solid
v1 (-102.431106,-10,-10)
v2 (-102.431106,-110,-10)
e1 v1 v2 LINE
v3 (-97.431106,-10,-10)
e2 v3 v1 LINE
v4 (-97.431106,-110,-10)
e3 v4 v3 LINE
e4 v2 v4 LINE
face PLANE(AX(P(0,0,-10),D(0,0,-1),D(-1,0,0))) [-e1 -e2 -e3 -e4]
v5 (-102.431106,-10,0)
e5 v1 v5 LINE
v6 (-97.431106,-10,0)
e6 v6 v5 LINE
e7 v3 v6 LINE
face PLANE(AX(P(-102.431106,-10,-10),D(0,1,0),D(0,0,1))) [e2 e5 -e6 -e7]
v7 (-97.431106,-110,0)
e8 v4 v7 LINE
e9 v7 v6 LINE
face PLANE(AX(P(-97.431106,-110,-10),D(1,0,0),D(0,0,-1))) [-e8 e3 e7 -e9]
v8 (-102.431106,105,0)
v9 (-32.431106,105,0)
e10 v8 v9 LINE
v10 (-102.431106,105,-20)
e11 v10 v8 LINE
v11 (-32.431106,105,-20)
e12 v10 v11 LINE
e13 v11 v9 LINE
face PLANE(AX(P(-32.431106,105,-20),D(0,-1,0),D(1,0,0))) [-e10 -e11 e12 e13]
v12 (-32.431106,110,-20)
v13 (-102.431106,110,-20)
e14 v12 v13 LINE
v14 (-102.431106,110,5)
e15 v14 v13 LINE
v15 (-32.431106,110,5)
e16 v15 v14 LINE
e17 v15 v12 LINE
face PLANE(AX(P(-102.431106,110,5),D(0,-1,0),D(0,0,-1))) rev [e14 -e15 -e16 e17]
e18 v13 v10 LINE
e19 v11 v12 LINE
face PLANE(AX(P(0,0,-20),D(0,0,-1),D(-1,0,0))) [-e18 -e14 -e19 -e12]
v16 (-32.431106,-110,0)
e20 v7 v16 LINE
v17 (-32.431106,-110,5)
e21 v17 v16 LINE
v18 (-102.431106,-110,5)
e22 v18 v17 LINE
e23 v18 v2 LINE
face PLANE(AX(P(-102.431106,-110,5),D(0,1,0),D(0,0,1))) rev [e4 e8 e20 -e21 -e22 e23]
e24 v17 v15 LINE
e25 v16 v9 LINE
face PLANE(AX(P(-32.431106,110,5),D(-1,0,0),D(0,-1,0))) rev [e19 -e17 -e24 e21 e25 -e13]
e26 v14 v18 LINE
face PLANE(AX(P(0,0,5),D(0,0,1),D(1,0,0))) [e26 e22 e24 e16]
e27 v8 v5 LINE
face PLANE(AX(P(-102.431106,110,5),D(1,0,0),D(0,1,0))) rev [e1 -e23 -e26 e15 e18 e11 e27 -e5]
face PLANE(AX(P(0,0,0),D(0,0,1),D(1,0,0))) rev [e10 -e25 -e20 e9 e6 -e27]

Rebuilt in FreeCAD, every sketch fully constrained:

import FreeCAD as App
import Part
import Sketcher
from FreeCAD import Vector

doc = App.newDocument("Part")
body = doc.addObject("PartDesign::Body", "Body")

# Sketch on XY plane
sketch1 = body.newObject("Sketcher::SketchObject", "Sketch")
sketch1.AttachmentSupport = (doc.getObject("XY_Plane"), [""])
sketch1.MapMode = "FlatFace"
sketch1.addGeometry([
    Part.LineSegment(Vector(-102, 110, 0), Vector(-102, -110, 0)),
    Part.LineSegment(Vector(-102, -110, 0), Vector(-32, -110, 0)),
    Part.LineSegment(Vector(-32, -110, 0), Vector(-32, 110, 0)),
    Part.LineSegment(Vector(-32, 110, 0), Vector(-102, 110, 0)),
], False)
sketch1.addConstraint([
    Sketcher.Constraint("Coincident", 0, 2, 1, 1),
    Sketcher.Constraint("Coincident", 1, 2, 2, 1),
    Sketcher.Constraint("Coincident", 2, 2, 3, 1),
    Sketcher.Constraint("Coincident", 3, 2, 0, 1),
    Sketcher.Constraint("Vertical", 0),
    Sketcher.Constraint("Horizontal", 1),
    Sketcher.Constraint("Vertical", 2),
    Sketcher.Constraint("Horizontal", 3),
    Sketcher.Constraint("DistanceX", 1, 1, 1, 2, 70.0),
    Sketcher.Constraint("DistanceY", 0, 2, 0, 1, 220.0),
    Sketcher.Constraint("DistanceY", 0, 2, -1, 1, 110.0),
    Sketcher.Constraint("DistanceX", 0, 2, -1, 1, 102.431106),
])
pad1 = body.newObject("PartDesign::Pad", "Pad")
pad1.Profile = sketch1
pad1.Length = 5

# Sketch on XY plane
sketch2 = body.newObject("Sketcher::SketchObject", "Sketch001")
sketch2.AttachmentSupport = (doc.getObject("XY_Plane"), [""])
sketch2.MapMode = "FlatFace"
sketch2.addGeometry([
    Part.LineSegment(Vector(-102, -10, 0), Vector(-102, -110, 0)),
    Part.LineSegment(Vector(-102, -110, 0), Vector(-97, -110, 0)),
    Part.LineSegment(Vector(-97, -110, 0), Vector(-97, -10, 0)),
    Part.LineSegment(Vector(-97, -10, 0), Vector(-102, -10, 0)),
], False)
sketch2.addConstraint([
    Sketcher.Constraint("Coincident", 0, 2, 1, 1),
    Sketcher.Constraint("Coincident", 1, 2, 2, 1),
    Sketcher.Constraint("Coincident", 2, 2, 3, 1),
    Sketcher.Constraint("Coincident", 3, 2, 0, 1),
    Sketcher.Constraint("Vertical", 0),
    Sketcher.Constraint("Horizontal", 1),
    Sketcher.Constraint("Vertical", 2),
    Sketcher.Constraint("Horizontal", 3),
    Sketcher.Constraint("DistanceX", 1, 1, 1, 2, 5.0),
    Sketcher.Constraint("DistanceY", 0, 2, 0, 1, 100.0),
    Sketcher.Constraint("DistanceY", 0, 2, -1, 1, 110.0),
    Sketcher.Constraint("DistanceX", 0, 2, -1, 1, 102.431106),
])
pad2 = body.newObject("PartDesign::Pad", "Pad001")
pad2.Profile = sketch2
pad2.Length = 10
pad2.Reversed = True

# Sketch on XY plane
sketch3 = body.newObject("Sketcher::SketchObject", "Sketch002")
sketch3.AttachmentSupport = (doc.getObject("XY_Plane"), [""])
sketch3.MapMode = "FlatFace"
sketch3.addGeometry([
    Part.LineSegment(Vector(-102, 110, 0), Vector(-102, 105, 0)),
    Part.LineSegment(Vector(-102, 105, 0), Vector(-32, 105, 0)),
    Part.LineSegment(Vector(-32, 105, 0), Vector(-32, 110, 0)),
    Part.LineSegment(Vector(-32, 110, 0), Vector(-102, 110, 0)),
], False)
sketch3.addConstraint([
    Sketcher.Constraint("Coincident", 0, 2, 1, 1),
    Sketcher.Constraint("Coincident", 1, 2, 2, 1),
    Sketcher.Constraint("Coincident", 2, 2, 3, 1),
    Sketcher.Constraint("Coincident", 3, 2, 0, 1),
    Sketcher.Constraint("Vertical", 0),
    Sketcher.Constraint("Horizontal", 1),
    Sketcher.Constraint("Vertical", 2),
    Sketcher.Constraint("Horizontal", 3),
    Sketcher.Constraint("DistanceX", 1, 1, 1, 2, 70.0),
    Sketcher.Constraint("DistanceY", 0, 2, 0, 1, 5.0),
    Sketcher.Constraint("DistanceY", -1, 1, 0, 2, 105.0),
    Sketcher.Constraint("DistanceX", 0, 2, -1, 1, 102.431106),
])
pad3 = body.newObject("PartDesign::Pad", "Pad002")
pad3.Profile = sketch3
pad3.Length = 20
pad3.Reversed = True

doc.recompute()
